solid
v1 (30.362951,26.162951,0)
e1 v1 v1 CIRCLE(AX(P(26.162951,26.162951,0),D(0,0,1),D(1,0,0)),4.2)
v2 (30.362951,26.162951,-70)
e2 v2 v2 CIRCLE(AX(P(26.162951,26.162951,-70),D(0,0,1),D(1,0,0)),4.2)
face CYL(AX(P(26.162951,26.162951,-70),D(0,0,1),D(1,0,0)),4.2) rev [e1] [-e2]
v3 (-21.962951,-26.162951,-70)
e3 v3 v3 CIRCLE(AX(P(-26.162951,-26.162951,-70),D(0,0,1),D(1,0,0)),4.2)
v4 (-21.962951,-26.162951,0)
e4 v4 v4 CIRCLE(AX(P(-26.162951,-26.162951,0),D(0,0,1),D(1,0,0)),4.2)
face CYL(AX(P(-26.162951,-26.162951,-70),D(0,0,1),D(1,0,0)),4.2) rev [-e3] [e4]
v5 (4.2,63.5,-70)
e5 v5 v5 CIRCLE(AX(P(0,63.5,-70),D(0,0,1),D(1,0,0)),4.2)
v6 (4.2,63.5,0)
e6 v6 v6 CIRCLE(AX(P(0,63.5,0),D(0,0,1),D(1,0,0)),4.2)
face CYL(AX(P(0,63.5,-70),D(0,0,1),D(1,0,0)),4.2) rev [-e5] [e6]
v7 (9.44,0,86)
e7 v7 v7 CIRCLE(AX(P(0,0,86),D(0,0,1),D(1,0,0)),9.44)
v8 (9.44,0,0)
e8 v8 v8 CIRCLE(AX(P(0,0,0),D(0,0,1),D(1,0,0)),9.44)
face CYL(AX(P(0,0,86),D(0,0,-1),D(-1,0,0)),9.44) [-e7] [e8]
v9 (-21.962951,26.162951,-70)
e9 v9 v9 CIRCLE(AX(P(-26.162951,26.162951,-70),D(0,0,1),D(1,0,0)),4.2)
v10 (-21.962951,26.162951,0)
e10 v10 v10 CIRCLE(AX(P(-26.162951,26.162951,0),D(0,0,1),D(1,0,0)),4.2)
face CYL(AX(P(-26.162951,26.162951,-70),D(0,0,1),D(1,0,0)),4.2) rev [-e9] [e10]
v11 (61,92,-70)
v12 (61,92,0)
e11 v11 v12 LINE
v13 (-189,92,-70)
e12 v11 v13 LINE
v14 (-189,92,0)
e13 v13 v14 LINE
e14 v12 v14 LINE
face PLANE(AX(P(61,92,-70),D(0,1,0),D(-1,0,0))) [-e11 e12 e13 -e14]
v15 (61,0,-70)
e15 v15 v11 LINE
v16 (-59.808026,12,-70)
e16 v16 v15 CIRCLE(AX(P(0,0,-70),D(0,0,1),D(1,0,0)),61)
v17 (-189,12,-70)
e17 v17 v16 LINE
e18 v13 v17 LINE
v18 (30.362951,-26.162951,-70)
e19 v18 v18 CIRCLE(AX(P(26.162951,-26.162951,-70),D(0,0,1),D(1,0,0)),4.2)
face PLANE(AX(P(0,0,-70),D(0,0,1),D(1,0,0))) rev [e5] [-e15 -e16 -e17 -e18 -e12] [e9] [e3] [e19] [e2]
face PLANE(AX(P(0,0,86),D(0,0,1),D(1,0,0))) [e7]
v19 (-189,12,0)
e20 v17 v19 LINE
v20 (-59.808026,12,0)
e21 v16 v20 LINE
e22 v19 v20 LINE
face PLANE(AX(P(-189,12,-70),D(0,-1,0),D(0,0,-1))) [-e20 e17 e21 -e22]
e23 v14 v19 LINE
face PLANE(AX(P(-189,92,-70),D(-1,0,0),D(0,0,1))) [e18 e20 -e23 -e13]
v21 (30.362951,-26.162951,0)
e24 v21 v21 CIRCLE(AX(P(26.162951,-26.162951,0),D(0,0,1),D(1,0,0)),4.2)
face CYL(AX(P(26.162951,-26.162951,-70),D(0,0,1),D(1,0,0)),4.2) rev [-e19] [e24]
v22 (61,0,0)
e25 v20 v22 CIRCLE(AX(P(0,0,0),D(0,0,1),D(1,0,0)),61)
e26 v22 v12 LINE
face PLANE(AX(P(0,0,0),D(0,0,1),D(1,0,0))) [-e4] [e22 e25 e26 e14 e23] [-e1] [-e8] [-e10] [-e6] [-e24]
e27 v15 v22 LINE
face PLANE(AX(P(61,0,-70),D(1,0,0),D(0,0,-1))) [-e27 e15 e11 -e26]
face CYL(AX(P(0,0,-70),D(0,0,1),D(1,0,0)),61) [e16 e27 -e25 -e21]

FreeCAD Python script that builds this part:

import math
import FreeCAD as App
import Part
import Sketcher

doc = App.newDocument("Part")
body = doc.addObject("PartDesign::Body", "Body")

# Sketch on XY plane
sketch1 = body.newObject("Sketcher::SketchObject", "Sketch")
sketch1.AttachmentSupport = (doc.getObject("XY_Plane"), [""])
sketch1.MapMode = "FlatFace"
sketch1.addGeometry([
    Part.LineSegment(App.Vector(61, 0, 0), App.Vector(61, 92, 0)),  # 0
    Part.LineSegment(App.Vector(61, 92, 0), App.Vector(-189, 92, 0)),  # 1
    Part.LineSegment(App.Vector(-189, 92, 0), App.Vector(-189, 12, 0)),  # 2
    Part.LineSegment(App.Vector(-189, 12, 0), App.Vector(-59.8, 12, 0)),  # 3
    Part.ArcOfCircle(Part.Circle(App.Vector(0, 0, 0), App.Vector(0, 0, 1), 61), math.radians(169), math.radians(360)),  # 4
    Part.Circle(App.Vector(-26.2, -26.2, 0), App.Vector(0, 0, 1), 4.2),  # 5
    Part.Circle(App.Vector(26.2, -26.2, 0), App.Vector(0, 0, 1), 4.2),  # 6
    Part.Circle(App.Vector(-26.2, 26.2, 0), App.Vector(0, 0, 1), 4.2),  # 7
    Part.Circle(App.Vector(26.2, 26.2, 0), App.Vector(0, 0, 1), 4.2),  # 8
    Part.Circle(App.Vector(0, 63.5, 0), App.Vector(0, 0, 1), 4.2),  # 9
], False)
sketch1.addConstraint([
    Sketcher.Constraint("Coincident", 0, 2, 1, 1),
    Sketcher.Constraint("Coincident", 1, 2, 2, 1),
    Sketcher.Constraint("Coincident", 2, 2, 3, 1),
    Sketcher.Constraint("Coincident", 3, 2, 4, 1),
    Sketcher.Constraint("Tangent", 4, 2, 0, 1),
    Sketcher.Constraint("Vertical", 0),
    Sketcher.Constraint("Horizontal", 1),
    Sketcher.Constraint("Vertical", 2),
    Sketcher.Constraint("Horizontal", 3),
    Sketcher.Constraint("Coincident", 4, 3, -1, 1),
    Sketcher.Constraint("Equal", 5, 6),
    Sketcher.Constraint("Equal", 6, 7),
    Sketcher.Constraint("Equal", 7, 8),
    Sketcher.Constraint("Equal", 8, 9),
    Sketcher.Constraint("Symmetric", 6, 3, 7, 3, -1, 1),
    Sketcher.Constraint("Symmetric", 5, 3, 8, 3, -1, 1),
    Sketcher.Constraint("Symmetric", 5, 3, 6, 3, -2),
    Sketcher.Constraint("PointOnObject", 9, 3, -2),
    Sketcher.Constraint("Radius", 4, 61.0),
    Sketcher.Constraint("Diameter", 5, 8.4),
    Sketcher.Constraint("DistanceX", 1, 2, 1, 1, 250.0),
    Sketcher.Constraint("DistanceY", 0, 1, 0, 2, 92.0),
    Sketcher.Constraint("DistanceY", 2, 2, 2, 1, 80.0),
    Sketcher.Constraint("DistanceY", -1, 1, 9, 3, 63.5),
    Sketcher.Constraint("DistanceX", 5, 3, 6, 3, 52.325902),
    Sketcher.Constraint("DistanceY", 5, 3, 7, 3, 52.325902),
])
pad1 = body.newObject("PartDesign::Pad", "Pad")
pad1.Profile = sketch1
pad1.Length = 70
pad1.Reversed = True

# Sketch on XY plane
sketch2 = body.newObject("Sketcher::SketchObject", "Sketch001")
sketch2.AttachmentSupport = (doc.getObject("XY_Plane"), [""])
sketch2.MapMode = "FlatFace"
sketch2.addGeometry(Part.Circle(App.Vector(0, 0, 0), App.Vector(0, 0, 1), 9), False)
sketch2.addConstraint([
    Sketcher.Constraint("Coincident", 0, 3, -1, 1),
    Sketcher.Constraint("Diameter", 0, 18.88),
])
pad2 = body.newObject("PartDesign::Pad", "Pad001")
pad2.Profile = sketch2
pad2.Length = 86

doc.recompute()
